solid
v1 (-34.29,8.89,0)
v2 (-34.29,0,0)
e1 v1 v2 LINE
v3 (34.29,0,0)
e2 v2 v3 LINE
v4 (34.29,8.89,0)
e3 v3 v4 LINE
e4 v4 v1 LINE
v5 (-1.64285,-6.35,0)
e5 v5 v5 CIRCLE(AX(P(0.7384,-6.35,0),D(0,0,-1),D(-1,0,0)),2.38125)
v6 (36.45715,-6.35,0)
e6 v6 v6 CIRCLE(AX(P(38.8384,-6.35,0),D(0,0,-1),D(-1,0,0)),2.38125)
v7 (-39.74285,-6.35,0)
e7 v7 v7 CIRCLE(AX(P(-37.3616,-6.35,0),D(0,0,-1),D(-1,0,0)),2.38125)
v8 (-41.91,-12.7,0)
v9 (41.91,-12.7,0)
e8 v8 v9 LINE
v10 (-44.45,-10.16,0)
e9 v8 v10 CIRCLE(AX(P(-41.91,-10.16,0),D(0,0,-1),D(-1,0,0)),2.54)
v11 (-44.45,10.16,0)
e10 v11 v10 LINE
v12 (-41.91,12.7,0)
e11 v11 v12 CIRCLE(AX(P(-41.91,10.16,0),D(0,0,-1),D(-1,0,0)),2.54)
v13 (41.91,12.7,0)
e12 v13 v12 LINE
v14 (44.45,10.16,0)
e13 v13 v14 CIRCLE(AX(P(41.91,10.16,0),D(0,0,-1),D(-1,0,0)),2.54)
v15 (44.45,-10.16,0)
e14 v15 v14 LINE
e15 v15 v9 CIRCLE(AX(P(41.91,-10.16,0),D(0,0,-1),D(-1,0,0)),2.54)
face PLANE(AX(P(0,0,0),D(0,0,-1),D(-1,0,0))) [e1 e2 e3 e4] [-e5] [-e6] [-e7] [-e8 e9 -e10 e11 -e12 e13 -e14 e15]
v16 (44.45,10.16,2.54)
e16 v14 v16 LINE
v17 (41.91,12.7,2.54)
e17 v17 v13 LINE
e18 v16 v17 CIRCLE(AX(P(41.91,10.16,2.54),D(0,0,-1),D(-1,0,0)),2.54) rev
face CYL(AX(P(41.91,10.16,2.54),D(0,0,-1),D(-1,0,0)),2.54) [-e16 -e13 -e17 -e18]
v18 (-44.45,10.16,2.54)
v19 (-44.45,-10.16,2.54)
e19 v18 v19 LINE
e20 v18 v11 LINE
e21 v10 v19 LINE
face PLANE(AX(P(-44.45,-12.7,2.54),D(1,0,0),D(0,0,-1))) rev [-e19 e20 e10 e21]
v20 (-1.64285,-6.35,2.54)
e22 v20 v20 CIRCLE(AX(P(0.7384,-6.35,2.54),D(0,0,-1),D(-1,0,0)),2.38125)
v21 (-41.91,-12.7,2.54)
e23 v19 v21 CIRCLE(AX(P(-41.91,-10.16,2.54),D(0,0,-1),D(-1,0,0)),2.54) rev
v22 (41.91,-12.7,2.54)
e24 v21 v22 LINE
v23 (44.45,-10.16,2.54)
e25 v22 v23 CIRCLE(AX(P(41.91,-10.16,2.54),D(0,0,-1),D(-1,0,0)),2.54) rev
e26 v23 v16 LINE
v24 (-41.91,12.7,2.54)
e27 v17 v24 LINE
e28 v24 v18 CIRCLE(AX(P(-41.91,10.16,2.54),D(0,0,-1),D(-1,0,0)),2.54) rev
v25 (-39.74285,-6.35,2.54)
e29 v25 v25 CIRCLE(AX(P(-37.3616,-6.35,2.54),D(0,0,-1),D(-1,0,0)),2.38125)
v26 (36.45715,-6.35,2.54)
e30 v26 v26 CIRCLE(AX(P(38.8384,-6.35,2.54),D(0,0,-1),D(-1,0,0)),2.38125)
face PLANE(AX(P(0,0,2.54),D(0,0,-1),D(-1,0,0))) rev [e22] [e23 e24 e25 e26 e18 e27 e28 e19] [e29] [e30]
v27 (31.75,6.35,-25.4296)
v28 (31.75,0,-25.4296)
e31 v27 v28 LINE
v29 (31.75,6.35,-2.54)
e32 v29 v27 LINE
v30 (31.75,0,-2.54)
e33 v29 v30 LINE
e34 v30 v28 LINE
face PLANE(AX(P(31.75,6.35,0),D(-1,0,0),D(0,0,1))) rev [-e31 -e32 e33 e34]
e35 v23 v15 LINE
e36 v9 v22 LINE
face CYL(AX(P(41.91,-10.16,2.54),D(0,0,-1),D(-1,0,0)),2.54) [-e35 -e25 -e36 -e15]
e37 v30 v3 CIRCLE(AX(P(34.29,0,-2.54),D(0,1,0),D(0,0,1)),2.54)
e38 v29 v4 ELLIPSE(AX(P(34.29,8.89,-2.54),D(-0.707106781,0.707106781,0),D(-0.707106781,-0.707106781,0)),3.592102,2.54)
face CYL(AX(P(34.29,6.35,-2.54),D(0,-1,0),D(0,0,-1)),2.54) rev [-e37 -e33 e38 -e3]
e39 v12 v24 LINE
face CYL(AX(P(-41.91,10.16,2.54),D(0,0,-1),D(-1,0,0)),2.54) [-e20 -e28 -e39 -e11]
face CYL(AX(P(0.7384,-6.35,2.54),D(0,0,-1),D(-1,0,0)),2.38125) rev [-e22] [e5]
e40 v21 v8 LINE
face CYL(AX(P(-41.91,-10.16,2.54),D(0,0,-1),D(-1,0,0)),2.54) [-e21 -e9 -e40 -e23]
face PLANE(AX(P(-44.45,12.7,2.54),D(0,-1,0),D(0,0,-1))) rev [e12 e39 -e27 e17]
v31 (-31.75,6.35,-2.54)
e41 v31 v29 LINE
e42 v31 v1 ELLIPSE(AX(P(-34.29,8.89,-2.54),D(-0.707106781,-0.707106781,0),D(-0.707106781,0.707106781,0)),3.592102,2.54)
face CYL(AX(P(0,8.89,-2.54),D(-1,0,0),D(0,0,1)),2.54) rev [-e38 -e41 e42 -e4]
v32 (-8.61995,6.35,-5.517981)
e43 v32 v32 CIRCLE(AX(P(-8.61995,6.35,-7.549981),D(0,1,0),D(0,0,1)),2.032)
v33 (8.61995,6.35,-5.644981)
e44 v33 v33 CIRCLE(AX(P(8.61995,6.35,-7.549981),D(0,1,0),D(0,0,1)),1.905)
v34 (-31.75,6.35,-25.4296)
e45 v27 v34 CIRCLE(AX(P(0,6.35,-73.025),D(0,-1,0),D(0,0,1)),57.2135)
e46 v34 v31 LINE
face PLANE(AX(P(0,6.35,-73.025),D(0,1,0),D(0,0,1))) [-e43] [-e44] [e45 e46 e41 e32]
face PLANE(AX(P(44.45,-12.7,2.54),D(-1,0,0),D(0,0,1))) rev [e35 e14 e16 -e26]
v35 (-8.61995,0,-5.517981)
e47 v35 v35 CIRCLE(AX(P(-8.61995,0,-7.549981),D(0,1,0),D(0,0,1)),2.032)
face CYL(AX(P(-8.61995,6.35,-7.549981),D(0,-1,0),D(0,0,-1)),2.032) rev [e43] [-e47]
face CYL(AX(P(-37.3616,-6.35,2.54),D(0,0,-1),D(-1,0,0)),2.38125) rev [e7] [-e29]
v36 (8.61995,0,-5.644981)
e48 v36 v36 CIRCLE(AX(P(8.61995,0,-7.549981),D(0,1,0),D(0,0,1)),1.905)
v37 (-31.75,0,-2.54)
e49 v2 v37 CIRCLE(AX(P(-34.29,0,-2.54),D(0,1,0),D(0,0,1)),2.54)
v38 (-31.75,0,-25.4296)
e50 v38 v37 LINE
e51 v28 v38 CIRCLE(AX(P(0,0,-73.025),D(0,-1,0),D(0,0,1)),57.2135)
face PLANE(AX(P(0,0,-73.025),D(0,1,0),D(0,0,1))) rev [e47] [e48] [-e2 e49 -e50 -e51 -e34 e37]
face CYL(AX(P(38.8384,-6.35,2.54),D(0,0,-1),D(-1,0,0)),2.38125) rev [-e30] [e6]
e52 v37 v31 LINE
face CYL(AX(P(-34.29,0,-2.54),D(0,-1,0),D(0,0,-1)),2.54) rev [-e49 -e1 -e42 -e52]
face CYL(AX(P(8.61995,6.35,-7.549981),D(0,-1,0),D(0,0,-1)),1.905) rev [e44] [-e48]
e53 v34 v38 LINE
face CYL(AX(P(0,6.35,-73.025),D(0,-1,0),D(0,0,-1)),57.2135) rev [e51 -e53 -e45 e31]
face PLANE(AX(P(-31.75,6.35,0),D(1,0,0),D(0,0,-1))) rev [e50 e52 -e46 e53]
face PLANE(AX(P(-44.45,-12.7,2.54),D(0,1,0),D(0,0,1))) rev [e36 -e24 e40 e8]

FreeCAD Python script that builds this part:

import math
import FreeCAD as App
import Part
import Sketcher

V = App.Vector
Q = App.Units.Quantity


def edges_at(feature, points):
    """Names of the edges that pass closest to the given points."""
    edges = feature.Shape.Edges
    near = lambda p: min(range(len(edges)), key=lambda i: edges[i].distToShape(Part.Vertex(*p))[0])
    return sorted({f"Edge{near(p) + 1}" for p in points})

doc = App.newDocument("Part")
params = doc.addObject("Spreadsheet::Sheet", "Params")
for row, (alias, value) in enumerate([
    ("sketch1_height", "1 in"),
    ("sketch1_width", "3.5 in"),
    ("pad1_length", "0.1 in"),
    ("sketch2_diameter", "0.15 in"),
    ("sketch2_diameter2", "0.16 in"),
    ("sketch2_width", "2.5 in"),
    ("pad2_length", "0.25 in"),
    ("sketch3_diameter", "0.1875 in"),
    ("fillet_radius", "0.1 in"),
], start=1):
    params.set(f"A{row}", alias)
    params.set(f"B{row}", "=" + value)
    params.setAlias(f"B{row}", alias)

body = doc.addObject("PartDesign::Body", "Body")

# Sketch on XY plane
sketch1 = body.newObject("Sketcher::SketchObject", "Sketch")
sketch1.AttachmentSupport = (doc.getObject("XY_Plane"), [""])
sketch1.MapMode = "FlatFace"
sketch1.addGeometry(Part.LineSegment(V(-44, 13, 0), V(-44, -13, 0)), False)
sketch1.addGeometry(Part.LineSegment(V(-44, -13, 0), V(44, -13, 0)), False)
sketch1.addGeometry(Part.LineSegment(V(44, -13, 0), V(44, 13, 0)), False)
sketch1.addGeometry(Part.LineSegment(V(44, 13, 0), V(-44, 13, 0)), False)
sketch1.addConstraint(Sketcher.Constraint("Coincident", 0, 2, 1, 1))
sketch1.addConstraint(Sketcher.Constraint("Coincident", 1, 2, 2, 1))
sketch1.addConstraint(Sketcher.Constraint("Coincident", 2, 2, 3, 1))
sketch1.addConstraint(Sketcher.Constraint("Coincident", 3, 2, 0, 1))
sketch1.addConstraint(Sketcher.Constraint("Vertical", 0))
sketch1.addConstraint(Sketcher.Constraint("Horizontal", 1))
sketch1.addConstraint(Sketcher.Constraint("Vertical", 2))
sketch1.addConstraint(Sketcher.Constraint("Horizontal", 3))
sketch1.addConstraint(Sketcher.Constraint("Symmetric", 0, 2, 2, 2, -1, 1))
sketch1.addConstraint(Sketcher.Constraint("DistanceY", 0, 2, 0, 1, Q("1 in")))
sketch1.addConstraint(Sketcher.Constraint("DistanceX", 1, 1, 1, 2, Q("3.5 in")))
sketch1.setExpression("Constraints[9]", "Params.sketch1_height")
sketch1.setExpression("Constraints[10]", "Params.sketch1_width")
pad1 = body.newObject("PartDesign::Pad", "Pad")
pad1.Profile = sketch1
pad1.setExpression("Length", "Params.pad1_length")

# Sketch on XZ plane
sketch2 = body.newObject("Sketcher::SketchObject", "Sketch001")
sketch2.AttachmentSupport = (doc.getObject("XZ_Plane"), [""])
sketch2.MapMode = "FlatFace"
sketch2.addGeometry(Part.LineSegment(V(-31.8, -25.4, 0), V(-31.8, 0, 0)), False)
sketch2.addGeometry(Part.LineSegment(V(-31.8, 0, 0), V(31.8, 0, 0)), False)
sketch2.addGeometry(Part.LineSegment(V(31.8, 0, 0), V(31.8, -25.4, 0)), False)
sketch2.addGeometry(Part.ArcOfCircle(Part.Circle(V(0, -73, 0), V(0, 0, 1), 57.2), math.radians(56), math.radians(124)), False)
sketch2.addGeometry(Part.Circle(V(8.6, -7.5, 0), V(0, 0, 1), 1.9), False)
sketch2.addGeometry(Part.Circle(V(-8.6, -7.5, 0), V(0, 0, 1), 2), False)
sketch2.addConstraint(Sketcher.Constraint("Coincident", 0, 2, 1, 1))
sketch2.addConstraint(Sketcher.Constraint("Coincident", 1, 2, 2, 1))
sketch2.addConstraint(Sketcher.Constraint("Coincident", 2, 2, 3, 1))
sketch2.addConstraint(Sketcher.Constraint("Coincident", 3, 2, 0, 1))
sketch2.addConstraint(Sketcher.Constraint("Vertical", 0))
sketch2.addConstraint(Sketcher.Constraint("Horizontal", 1))
sketch2.addConstraint(Sketcher.Constraint("Vertical", 2))
sketch2.addConstraint(Sketcher.Constraint("Symmetric", 0, 2, 1, 2, -1, 1))
sketch2.addConstraint(Sketcher.Constraint("Symmetric", 4, 3, 5, 3, -2))
sketch2.addConstraint(Sketcher.Constraint("PointOnObject", 3, 3, -2))
sketch2.addConstraint(Sketcher.Constraint("Diameter", 4, Q("0.15 in")))
sketch2.addConstraint(Sketcher.Constraint("Diameter", 5, Q("0.16 in")))
sketch2.addConstraint(Sketcher.Constraint("DistanceX", 1, 1, 1, 2, Q("2.5 in")))
sketch2.addConstraint(Sketcher.Constraint("Radius", 3, Q("2.2525 in")))
sketch2.addConstraint(Sketcher.Constraint("DistanceY", 3, 3, -1, 1, Q("2.875 in")))
sketch2.addConstraint(Sketcher.Constraint("DistanceX", 5, 3, 4, 3, 17.239899))
sketch2.addConstraint(Sketcher.Constraint("DistanceY", 4, 3, -1, 1, 7.549981))
sketch2.setExpression("Constraints[10]", "Params.sketch2_diameter")
sketch2.setExpression("Constraints[11]", "Params.sketch2_diameter2")
sketch2.setExpression("Constraints[12]", "Params.sketch2_width")
pad2 = body.newObject("PartDesign::Pad", "Pad001")
pad2.Profile = sketch2
pad2.setExpression("Length", "Params.pad2_length")
pad2.Reversed = True

# Sketch on XY plane
sketch3 = body.newObject("Sketcher::SketchObject", "Sketch002")
sketch3.AttachmentSupport = (doc.getObject("XY_Plane"), [""])
sketch3.MapMode = "FlatFace"
sketch3.addGeometry(Part.Circle(V(38.8, -6.3, 0), V(0, 0, 1), 2.4), False)
sketch3.addGeometry(Part.Circle(V(0.7, -6.3, 0), V(0, 0, 1), 2.4), False)
sketch3.addGeometry(Part.Circle(V(-37.4, -6.3, 0), V(0, 0, 1), 2.4), False)
sketch3.addConstraint(Sketcher.Constraint("Equal", 0, 1))
sketch3.addConstraint(Sketcher.Constraint("Equal", 1, 2))
sketch3.addConstraint(Sketcher.Constraint("Horizontal", 0, 3, 1, 3))
sketch3.addConstraint(Sketcher.Constraint("Horizontal", 1, 3, 2, 3))
sketch3.addConstraint(Sketcher.Constraint("Diameter", 0, Q("0.1875 in")))
sketch3.addConstraint(Sketcher.Constraint("DistanceX", 2, 3, 0, 3, Q("3 in")))
sketch3.addConstraint(Sketcher.Constraint("DistanceX", 1, 3, 0, 3, Q("1.5 in")))
sketch3.addConstraint(Sketcher.Constraint("DistanceY", 0, 3, -1, 1, Q("0.25 in")))
sketch3.addConstraint(Sketcher.Constraint("DistanceX", -1, 1, 0, 3, 38.8384))
sketch3.setExpression("Constraints[4]", "Params.sketch3_diameter")
pocket1 = body.newObject("PartDesign::Pocket", "Pocket")
pocket1.Profile = sketch3
pocket1.Type = "ThroughAll"
pocket1.Reversed = True
doc.recompute()

fillet = body.newObject("PartDesign::Fillet", "Fillet")
fillet.Base = (pocket1, edges_at(pocket1, [
    (0, 6.35, 0),
    (31.75, 3.175, 0),
    (-31.75, 3.175, 0),
    (44.45, -12.7, 1.27),
    (-44.45, -12.7, 1.27),
    (-44.45, 12.7, 1.27),
    (44.45, 12.7, 1.27),
]))
fillet.setExpression("Radius", "Params.fillet_radius")

doc.recompute()
